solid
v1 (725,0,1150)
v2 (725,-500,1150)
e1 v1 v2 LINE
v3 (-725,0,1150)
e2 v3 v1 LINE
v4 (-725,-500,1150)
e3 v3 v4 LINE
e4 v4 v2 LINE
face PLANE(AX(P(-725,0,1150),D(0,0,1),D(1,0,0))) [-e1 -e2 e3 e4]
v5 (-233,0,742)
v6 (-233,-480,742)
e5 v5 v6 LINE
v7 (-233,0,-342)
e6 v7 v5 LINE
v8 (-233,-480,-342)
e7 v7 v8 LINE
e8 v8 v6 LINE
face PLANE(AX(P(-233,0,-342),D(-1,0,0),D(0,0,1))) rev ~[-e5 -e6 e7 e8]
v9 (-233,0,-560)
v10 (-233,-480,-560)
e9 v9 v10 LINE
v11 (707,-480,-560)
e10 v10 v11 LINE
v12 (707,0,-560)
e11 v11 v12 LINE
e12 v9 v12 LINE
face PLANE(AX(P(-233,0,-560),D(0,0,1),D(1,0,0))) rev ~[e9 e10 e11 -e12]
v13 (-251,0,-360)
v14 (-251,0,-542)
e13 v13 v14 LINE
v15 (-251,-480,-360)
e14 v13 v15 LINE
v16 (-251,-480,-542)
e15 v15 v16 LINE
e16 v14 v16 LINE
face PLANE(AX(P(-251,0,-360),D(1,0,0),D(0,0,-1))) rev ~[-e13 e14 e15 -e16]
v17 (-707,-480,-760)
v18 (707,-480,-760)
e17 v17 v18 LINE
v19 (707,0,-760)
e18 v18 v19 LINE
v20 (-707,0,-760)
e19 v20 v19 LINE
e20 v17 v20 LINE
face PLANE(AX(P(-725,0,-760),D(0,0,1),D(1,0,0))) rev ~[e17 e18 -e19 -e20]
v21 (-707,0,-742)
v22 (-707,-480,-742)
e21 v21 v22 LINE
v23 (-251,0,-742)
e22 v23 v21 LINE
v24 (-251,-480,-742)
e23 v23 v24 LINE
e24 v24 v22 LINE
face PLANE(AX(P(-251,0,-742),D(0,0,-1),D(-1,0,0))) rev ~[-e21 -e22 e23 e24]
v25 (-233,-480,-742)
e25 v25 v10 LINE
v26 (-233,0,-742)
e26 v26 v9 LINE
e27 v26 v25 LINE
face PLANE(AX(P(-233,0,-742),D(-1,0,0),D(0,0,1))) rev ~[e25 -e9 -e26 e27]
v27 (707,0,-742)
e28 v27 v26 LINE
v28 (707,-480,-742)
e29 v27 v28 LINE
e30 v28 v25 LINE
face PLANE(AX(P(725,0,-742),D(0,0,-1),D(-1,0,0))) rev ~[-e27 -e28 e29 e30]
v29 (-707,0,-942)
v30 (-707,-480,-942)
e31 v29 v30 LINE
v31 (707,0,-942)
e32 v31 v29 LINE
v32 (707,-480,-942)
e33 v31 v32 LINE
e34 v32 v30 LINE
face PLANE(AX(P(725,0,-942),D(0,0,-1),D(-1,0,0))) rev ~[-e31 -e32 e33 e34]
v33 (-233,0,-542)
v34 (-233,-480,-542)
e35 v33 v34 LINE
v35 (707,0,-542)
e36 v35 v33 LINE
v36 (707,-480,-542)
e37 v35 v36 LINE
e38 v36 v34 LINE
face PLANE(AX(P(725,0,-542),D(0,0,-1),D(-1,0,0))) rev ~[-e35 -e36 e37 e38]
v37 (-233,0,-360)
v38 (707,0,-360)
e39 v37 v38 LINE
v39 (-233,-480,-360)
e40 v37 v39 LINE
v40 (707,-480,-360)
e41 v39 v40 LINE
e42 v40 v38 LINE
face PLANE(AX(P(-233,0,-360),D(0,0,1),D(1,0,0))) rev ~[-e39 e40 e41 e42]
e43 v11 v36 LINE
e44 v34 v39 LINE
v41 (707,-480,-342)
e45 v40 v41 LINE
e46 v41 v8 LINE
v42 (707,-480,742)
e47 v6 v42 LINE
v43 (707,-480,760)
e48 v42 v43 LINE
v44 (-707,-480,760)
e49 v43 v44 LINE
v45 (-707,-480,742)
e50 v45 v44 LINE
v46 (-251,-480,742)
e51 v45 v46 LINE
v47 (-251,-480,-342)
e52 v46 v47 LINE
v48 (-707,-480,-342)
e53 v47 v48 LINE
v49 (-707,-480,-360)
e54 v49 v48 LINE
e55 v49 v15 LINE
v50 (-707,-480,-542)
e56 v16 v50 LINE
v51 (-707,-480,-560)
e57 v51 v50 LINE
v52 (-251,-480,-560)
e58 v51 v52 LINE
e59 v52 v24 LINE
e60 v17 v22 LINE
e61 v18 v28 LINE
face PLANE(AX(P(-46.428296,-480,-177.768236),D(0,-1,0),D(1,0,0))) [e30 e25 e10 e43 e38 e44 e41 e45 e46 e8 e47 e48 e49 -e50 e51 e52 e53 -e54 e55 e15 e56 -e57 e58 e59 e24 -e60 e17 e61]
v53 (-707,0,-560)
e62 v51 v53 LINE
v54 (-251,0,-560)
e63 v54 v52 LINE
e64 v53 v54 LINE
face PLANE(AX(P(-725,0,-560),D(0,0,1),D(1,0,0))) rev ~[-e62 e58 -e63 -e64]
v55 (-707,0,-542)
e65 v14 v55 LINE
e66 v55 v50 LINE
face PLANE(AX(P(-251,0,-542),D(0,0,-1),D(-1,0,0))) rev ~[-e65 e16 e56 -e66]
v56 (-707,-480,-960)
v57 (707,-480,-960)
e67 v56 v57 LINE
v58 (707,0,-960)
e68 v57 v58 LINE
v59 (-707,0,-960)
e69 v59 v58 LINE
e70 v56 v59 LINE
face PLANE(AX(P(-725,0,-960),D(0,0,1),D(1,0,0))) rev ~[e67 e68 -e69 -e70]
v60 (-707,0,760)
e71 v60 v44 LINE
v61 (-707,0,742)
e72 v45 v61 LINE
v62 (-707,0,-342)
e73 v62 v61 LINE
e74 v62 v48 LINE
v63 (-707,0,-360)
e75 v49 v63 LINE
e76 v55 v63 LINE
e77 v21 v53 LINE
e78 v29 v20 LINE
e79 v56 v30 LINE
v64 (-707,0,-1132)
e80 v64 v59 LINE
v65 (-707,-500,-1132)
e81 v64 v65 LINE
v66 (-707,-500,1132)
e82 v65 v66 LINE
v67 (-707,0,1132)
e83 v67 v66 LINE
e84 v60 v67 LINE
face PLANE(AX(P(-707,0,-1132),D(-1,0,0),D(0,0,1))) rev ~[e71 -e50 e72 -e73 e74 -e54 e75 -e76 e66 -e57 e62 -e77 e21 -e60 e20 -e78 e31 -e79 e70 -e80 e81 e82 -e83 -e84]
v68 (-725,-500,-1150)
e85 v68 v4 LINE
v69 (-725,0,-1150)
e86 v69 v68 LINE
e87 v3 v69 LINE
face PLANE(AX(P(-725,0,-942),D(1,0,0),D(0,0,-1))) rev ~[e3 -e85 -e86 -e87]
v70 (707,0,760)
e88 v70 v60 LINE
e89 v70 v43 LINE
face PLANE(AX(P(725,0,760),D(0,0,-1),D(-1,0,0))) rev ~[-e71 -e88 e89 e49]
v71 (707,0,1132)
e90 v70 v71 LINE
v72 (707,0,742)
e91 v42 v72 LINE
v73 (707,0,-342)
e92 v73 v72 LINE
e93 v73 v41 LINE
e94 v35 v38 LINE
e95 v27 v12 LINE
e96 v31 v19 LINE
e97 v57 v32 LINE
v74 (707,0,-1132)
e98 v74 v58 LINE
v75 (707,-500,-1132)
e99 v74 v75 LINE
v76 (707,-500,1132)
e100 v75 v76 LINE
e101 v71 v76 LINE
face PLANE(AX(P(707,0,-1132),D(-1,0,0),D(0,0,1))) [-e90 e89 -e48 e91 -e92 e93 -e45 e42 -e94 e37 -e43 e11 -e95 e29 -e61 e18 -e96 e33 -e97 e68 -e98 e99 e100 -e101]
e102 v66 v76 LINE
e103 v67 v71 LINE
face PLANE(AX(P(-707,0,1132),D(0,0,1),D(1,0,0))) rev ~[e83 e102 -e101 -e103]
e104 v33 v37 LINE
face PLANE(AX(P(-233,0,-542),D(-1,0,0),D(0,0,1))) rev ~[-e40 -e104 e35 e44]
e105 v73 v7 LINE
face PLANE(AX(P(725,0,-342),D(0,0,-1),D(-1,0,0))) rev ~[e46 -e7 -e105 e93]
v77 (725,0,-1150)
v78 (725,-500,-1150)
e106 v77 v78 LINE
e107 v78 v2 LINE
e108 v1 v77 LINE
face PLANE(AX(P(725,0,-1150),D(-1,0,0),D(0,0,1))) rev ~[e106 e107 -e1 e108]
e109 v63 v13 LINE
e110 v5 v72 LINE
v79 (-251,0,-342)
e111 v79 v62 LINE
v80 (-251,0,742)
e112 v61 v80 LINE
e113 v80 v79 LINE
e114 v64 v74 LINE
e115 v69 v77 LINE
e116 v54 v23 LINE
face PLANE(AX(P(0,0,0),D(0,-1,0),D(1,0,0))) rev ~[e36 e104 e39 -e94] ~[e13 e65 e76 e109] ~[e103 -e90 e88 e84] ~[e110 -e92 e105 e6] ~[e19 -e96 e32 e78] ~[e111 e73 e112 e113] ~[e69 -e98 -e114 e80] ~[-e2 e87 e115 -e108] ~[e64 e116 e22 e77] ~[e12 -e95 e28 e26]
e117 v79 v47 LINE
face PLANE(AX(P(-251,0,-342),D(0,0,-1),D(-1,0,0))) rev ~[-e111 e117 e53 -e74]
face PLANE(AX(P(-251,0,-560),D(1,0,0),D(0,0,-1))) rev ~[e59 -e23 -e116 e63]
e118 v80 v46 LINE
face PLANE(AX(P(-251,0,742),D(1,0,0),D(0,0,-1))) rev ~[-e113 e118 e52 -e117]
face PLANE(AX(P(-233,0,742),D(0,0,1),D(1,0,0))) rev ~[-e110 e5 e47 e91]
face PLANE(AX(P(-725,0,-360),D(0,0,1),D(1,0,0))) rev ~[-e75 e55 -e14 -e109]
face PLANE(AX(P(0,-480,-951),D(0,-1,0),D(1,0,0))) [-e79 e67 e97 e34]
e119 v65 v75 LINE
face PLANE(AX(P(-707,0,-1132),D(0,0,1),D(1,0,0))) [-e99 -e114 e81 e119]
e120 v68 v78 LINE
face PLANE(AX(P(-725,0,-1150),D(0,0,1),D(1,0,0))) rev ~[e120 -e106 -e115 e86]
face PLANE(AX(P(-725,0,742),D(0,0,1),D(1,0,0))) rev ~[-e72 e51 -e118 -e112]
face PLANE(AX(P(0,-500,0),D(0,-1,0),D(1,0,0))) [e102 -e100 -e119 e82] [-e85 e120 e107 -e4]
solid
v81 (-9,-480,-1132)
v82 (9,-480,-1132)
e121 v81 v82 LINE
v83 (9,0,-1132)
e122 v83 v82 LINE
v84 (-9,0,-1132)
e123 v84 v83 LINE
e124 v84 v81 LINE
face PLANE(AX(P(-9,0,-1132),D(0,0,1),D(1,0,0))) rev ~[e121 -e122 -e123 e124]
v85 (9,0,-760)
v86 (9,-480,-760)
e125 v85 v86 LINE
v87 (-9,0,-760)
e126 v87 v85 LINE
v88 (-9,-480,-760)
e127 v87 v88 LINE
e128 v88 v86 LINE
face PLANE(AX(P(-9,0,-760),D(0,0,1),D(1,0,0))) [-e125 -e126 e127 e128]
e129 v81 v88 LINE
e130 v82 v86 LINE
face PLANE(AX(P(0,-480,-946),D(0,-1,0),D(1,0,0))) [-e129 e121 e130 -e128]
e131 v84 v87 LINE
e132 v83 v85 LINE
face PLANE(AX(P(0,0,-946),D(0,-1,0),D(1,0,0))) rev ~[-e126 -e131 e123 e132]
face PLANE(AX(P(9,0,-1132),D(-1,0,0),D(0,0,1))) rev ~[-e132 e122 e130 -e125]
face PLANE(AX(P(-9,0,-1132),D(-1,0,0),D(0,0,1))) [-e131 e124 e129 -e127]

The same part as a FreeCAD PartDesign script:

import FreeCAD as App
import Part
import Sketcher
from FreeCAD import Vector
Q = App.Units.Quantity


def add_polygon(sketch, points):
    """Adds a closed chain of lines whose ends are joined by coincident constraints."""
    first, n = sketch.GeometryCount, len(points)
    for a, b in zip(points, points[1:] + points[:1]):
        sketch.addGeometry(Part.LineSegment(App.Vector(*a, 0), App.Vector(*b, 0)), False)
    for i in range(n):
        sketch.addConstraint(Sketcher.Constraint("Coincident", first + i, 2, first + (i + 1) % n, 1))

doc = App.newDocument("Part")
body = doc.addObject("PartDesign::Body", "Body")

# Sketch on XZ plane
sketch1 = body.newObject("Sketcher::SketchObject", "Sketch")
sketch1.AttachmentSupport = (doc.getObject("XZ_Plane"), [""])
sketch1.MapMode = "FlatFace"
add_polygon(sketch1, [(-725, 1150), (-725, -1150), (725, -1150), (725, 1150)])  # lines 0-3
sketch1.addConstraint([
    Sketcher.Constraint("Vertical", 0),
    Sketcher.Constraint("Horizontal", 1),
    Sketcher.Constraint("Vertical", 2),
    Sketcher.Constraint("Horizontal", 3),
    Sketcher.Constraint("Symmetric", 0, 2, 2, 2, -1, 1),
    Sketcher.Constraint("DistanceX", 1, 1, 1, 2, Q("1450 mm")),
    Sketcher.Constraint("DistanceY", 0, 2, 0, 1, Q("2300 mm")),
])
pad1 = body.newObject("PartDesign::Pad", "Pad")
pad1.Profile = sketch1
pad1.Length = 500

# Sketch on XZ plane
sketch2 = body.newObject("Sketcher::SketchObject", "Sketch001")
sketch2.AttachmentSupport = (doc.getObject("XZ_Plane"), [""])
sketch2.MapMode = "FlatFace"
add_polygon(sketch2, [(-707, 1132), (-707, -1132), (707, -1132), (707, 1132)])  # lines 0-3
sketch2.addConstraint([
    Sketcher.Constraint("Vertical", 0),
    Sketcher.Constraint("Horizontal", 1),
    Sketcher.Constraint("Vertical", 2),
    Sketcher.Constraint("Horizontal", 3),
    Sketcher.Constraint("Symmetric", 0, 2, 2, 2, -1, 1),
    Sketcher.Constraint("DistanceX", 1, 1, 1, 2, Q("1414 mm")),
    Sketcher.Constraint("DistanceY", 0, 2, 0, 1, Q("2264 mm")),
])
pocket1 = body.newObject("PartDesign::Pocket", "Pocket")
pocket1.Profile = sketch2
pocket1.Length = 500
pocket1.Reversed = True

# Sketch on XZ plane
sketch3 = body.newObject("Sketcher::SketchObject", "Sketch002")
sketch3.AttachmentSupport = (doc.getObject("XZ_Plane"), [""])
sketch3.MapMode = "FlatFace"
add_polygon(sketch3, [(-725, -960), (725, -960), (725, -942), (-725, -942)])  # lines 0-3
add_polygon(sketch3, [(725, -760), (725, -742), (-233, -742), (-233, -560), (725, -560), (725, -542), (-233, -542), (-233, -360), (725, -360), (725, -342), (-233, -342), (-233, 742), (725, 742), (725, 760), (-725, 760), (-725, 742), (-251, 742), (-251, -342), (-725, -342), (-725, -360), (-251, -360), (-251, -542), (-725, -542), (-725, -560), (-251, -560), (-251, -742), (-725, -742), (-725, -760)])  # lines 4-31
sketch3.addConstraint([
    Sketcher.Constraint("Horizontal", 0),
    Sketcher.Constraint("Vertical", 1),
    Sketcher.Constraint("Horizontal", 2),
    Sketcher.Constraint("Vertical", 3),
    Sketcher.Constraint("Vertical", 4),
    Sketcher.Constraint("Horizontal", 5),
    Sketcher.Constraint("Vertical", 6),
    Sketcher.Constraint("Horizontal", 7),
    Sketcher.Constraint("Vertical", 8),
    Sketcher.Constraint("Horizontal", 9),
    Sketcher.Constraint("Vertical", 10),
    Sketcher.Constraint("Horizontal", 11),
    Sketcher.Constraint("Vertical", 12),
    Sketcher.Constraint("Horizontal", 13),
    Sketcher.Constraint("Vertical", 14),
    Sketcher.Constraint("Horizontal", 15),
    Sketcher.Constraint("Vertical", 16),
    Sketcher.Constraint("Horizontal", 17),
    Sketcher.Constraint("Vertical", 18),
    Sketcher.Constraint("Horizontal", 19),
    Sketcher.Constraint("Vertical", 20),
    Sketcher.Constraint("Horizontal", 21),
    Sketcher.Constraint("Vertical", 22),
    Sketcher.Constraint("Horizontal", 23),
    Sketcher.Constraint("Vertical", 24),
    Sketcher.Constraint("Horizontal", 25),
    Sketcher.Constraint("Vertical", 26),
    Sketcher.Constraint("Horizontal", 27),
    Sketcher.Constraint("Vertical", 28),
    Sketcher.Constraint("Horizontal", 29),
    Sketcher.Constraint("Vertical", 30),
    Sketcher.Constraint("Horizontal", 31),
    Sketcher.Constraint("Symmetric", 4, 2, 18, 2, -1, 1),
    Sketcher.Constraint("Symmetric", 15, 2, 29, 2, -1, 1),
    Sketcher.Constraint("Symmetric", 15, 2, 18, 2, -2),
    Sketcher.Constraint("Symmetric", 12, 2, 21, 2, -2),
    Sketcher.Constraint("Symmetric", 8, 2, 25, 2, -2),
    Sketcher.Constraint("Horizontal", 11, 2, 22, 2),
    Sketcher.Constraint("Horizontal", 7, 2, 26, 2),
    Sketcher.Constraint("Vertical", 1, 2, 4, 2),
    Sketcher.Constraint("Vertical", 4, 2, 7, 2),
    Sketcher.Constraint("Vertical", 6, 2, 9, 2),
    Sketcher.Constraint("Vertical", 8, 2, 11, 2),
    Sketcher.Constraint("Vertical", 10, 2, 13, 2),
    Sketcher.Constraint("Vertical", 3, 2, 17, 2),
    Sketcher.Constraint("Vertical", 20, 2, 23, 2),
    Sketcher.Constraint("Vertical", 24, 2, 27, 2),
    Sketcher.Constraint("Equal", 3, 4),
    Sketcher.Constraint("Equal", 4, 8),
    Sketcher.Constraint("Equal", 6, 10),
    Sketcher.Constraint("Equal", 8, 12),
    Sketcher.Constraint("Equal", 12, 16),
    Sketcher.Constraint("DistanceX", 0, 1, 0, 2, Q("1450 mm")),
    Sketcher.Constraint("DistanceX", 5, 2, 5, 1, Q("958 mm")),
    Sketcher.Constraint("DistanceX", 19, 1, 19, 2, Q("474 mm")),
    Sketcher.Constraint("DistanceY", 1, 1, 1, 2, Q("18 mm")),
    Sketcher.Constraint("DistanceY", 6, 1, 6, 2, Q("182 mm")),
    Sketcher.Constraint("DistanceY", 14, 1, 14, 2, Q("1084 mm")),
    Sketcher.Constraint("DistanceY", 0, 2, -1, 1, Q("960 mm")),
])
pad2 = body.newObject("PartDesign::Pad", "Pad001")
pad2.Profile = sketch3
pad2.Length = 480
body2 = doc.addObject("PartDesign::Body", "Body001")

# Sketch on XZ plane
sketch4 = body2.newObject("Sketcher::SketchObject", "Sketch003")
sketch4.AttachmentSupport = (doc.getObject("XZ_Plane001"), [""])
sketch4.MapMode = "FlatFace"
add_polygon(sketch4, [(-9, -760), (-9, -1132), (9, -1132), (9, -760)])  # lines 0-3
sketch4.addConstraint([
    Sketcher.Constraint("Vertical", 0),
    Sketcher.Constraint("Horizontal", 1),
    Sketcher.Constraint("Vertical", 2),
    Sketcher.Constraint("Horizontal", 3),
    Sketcher.Constraint("DistanceX", 1, 1, 1, 2, Q("18 mm")),
    Sketcher.Constraint("DistanceY", 0, 2, 0, 1, Q("372 mm")),
    Sketcher.Constraint("DistanceX", 0, 2, -1, 1, Q("9 mm")),
    Sketcher.Constraint("DistanceY", 0, 2, -1, 1, Q("1132 mm")),
])
pad3 = body2.newObject("PartDesign::Pad", "Pad002")
pad3.Profile = sketch4
pad3.Length = 480

doc.recompute()
